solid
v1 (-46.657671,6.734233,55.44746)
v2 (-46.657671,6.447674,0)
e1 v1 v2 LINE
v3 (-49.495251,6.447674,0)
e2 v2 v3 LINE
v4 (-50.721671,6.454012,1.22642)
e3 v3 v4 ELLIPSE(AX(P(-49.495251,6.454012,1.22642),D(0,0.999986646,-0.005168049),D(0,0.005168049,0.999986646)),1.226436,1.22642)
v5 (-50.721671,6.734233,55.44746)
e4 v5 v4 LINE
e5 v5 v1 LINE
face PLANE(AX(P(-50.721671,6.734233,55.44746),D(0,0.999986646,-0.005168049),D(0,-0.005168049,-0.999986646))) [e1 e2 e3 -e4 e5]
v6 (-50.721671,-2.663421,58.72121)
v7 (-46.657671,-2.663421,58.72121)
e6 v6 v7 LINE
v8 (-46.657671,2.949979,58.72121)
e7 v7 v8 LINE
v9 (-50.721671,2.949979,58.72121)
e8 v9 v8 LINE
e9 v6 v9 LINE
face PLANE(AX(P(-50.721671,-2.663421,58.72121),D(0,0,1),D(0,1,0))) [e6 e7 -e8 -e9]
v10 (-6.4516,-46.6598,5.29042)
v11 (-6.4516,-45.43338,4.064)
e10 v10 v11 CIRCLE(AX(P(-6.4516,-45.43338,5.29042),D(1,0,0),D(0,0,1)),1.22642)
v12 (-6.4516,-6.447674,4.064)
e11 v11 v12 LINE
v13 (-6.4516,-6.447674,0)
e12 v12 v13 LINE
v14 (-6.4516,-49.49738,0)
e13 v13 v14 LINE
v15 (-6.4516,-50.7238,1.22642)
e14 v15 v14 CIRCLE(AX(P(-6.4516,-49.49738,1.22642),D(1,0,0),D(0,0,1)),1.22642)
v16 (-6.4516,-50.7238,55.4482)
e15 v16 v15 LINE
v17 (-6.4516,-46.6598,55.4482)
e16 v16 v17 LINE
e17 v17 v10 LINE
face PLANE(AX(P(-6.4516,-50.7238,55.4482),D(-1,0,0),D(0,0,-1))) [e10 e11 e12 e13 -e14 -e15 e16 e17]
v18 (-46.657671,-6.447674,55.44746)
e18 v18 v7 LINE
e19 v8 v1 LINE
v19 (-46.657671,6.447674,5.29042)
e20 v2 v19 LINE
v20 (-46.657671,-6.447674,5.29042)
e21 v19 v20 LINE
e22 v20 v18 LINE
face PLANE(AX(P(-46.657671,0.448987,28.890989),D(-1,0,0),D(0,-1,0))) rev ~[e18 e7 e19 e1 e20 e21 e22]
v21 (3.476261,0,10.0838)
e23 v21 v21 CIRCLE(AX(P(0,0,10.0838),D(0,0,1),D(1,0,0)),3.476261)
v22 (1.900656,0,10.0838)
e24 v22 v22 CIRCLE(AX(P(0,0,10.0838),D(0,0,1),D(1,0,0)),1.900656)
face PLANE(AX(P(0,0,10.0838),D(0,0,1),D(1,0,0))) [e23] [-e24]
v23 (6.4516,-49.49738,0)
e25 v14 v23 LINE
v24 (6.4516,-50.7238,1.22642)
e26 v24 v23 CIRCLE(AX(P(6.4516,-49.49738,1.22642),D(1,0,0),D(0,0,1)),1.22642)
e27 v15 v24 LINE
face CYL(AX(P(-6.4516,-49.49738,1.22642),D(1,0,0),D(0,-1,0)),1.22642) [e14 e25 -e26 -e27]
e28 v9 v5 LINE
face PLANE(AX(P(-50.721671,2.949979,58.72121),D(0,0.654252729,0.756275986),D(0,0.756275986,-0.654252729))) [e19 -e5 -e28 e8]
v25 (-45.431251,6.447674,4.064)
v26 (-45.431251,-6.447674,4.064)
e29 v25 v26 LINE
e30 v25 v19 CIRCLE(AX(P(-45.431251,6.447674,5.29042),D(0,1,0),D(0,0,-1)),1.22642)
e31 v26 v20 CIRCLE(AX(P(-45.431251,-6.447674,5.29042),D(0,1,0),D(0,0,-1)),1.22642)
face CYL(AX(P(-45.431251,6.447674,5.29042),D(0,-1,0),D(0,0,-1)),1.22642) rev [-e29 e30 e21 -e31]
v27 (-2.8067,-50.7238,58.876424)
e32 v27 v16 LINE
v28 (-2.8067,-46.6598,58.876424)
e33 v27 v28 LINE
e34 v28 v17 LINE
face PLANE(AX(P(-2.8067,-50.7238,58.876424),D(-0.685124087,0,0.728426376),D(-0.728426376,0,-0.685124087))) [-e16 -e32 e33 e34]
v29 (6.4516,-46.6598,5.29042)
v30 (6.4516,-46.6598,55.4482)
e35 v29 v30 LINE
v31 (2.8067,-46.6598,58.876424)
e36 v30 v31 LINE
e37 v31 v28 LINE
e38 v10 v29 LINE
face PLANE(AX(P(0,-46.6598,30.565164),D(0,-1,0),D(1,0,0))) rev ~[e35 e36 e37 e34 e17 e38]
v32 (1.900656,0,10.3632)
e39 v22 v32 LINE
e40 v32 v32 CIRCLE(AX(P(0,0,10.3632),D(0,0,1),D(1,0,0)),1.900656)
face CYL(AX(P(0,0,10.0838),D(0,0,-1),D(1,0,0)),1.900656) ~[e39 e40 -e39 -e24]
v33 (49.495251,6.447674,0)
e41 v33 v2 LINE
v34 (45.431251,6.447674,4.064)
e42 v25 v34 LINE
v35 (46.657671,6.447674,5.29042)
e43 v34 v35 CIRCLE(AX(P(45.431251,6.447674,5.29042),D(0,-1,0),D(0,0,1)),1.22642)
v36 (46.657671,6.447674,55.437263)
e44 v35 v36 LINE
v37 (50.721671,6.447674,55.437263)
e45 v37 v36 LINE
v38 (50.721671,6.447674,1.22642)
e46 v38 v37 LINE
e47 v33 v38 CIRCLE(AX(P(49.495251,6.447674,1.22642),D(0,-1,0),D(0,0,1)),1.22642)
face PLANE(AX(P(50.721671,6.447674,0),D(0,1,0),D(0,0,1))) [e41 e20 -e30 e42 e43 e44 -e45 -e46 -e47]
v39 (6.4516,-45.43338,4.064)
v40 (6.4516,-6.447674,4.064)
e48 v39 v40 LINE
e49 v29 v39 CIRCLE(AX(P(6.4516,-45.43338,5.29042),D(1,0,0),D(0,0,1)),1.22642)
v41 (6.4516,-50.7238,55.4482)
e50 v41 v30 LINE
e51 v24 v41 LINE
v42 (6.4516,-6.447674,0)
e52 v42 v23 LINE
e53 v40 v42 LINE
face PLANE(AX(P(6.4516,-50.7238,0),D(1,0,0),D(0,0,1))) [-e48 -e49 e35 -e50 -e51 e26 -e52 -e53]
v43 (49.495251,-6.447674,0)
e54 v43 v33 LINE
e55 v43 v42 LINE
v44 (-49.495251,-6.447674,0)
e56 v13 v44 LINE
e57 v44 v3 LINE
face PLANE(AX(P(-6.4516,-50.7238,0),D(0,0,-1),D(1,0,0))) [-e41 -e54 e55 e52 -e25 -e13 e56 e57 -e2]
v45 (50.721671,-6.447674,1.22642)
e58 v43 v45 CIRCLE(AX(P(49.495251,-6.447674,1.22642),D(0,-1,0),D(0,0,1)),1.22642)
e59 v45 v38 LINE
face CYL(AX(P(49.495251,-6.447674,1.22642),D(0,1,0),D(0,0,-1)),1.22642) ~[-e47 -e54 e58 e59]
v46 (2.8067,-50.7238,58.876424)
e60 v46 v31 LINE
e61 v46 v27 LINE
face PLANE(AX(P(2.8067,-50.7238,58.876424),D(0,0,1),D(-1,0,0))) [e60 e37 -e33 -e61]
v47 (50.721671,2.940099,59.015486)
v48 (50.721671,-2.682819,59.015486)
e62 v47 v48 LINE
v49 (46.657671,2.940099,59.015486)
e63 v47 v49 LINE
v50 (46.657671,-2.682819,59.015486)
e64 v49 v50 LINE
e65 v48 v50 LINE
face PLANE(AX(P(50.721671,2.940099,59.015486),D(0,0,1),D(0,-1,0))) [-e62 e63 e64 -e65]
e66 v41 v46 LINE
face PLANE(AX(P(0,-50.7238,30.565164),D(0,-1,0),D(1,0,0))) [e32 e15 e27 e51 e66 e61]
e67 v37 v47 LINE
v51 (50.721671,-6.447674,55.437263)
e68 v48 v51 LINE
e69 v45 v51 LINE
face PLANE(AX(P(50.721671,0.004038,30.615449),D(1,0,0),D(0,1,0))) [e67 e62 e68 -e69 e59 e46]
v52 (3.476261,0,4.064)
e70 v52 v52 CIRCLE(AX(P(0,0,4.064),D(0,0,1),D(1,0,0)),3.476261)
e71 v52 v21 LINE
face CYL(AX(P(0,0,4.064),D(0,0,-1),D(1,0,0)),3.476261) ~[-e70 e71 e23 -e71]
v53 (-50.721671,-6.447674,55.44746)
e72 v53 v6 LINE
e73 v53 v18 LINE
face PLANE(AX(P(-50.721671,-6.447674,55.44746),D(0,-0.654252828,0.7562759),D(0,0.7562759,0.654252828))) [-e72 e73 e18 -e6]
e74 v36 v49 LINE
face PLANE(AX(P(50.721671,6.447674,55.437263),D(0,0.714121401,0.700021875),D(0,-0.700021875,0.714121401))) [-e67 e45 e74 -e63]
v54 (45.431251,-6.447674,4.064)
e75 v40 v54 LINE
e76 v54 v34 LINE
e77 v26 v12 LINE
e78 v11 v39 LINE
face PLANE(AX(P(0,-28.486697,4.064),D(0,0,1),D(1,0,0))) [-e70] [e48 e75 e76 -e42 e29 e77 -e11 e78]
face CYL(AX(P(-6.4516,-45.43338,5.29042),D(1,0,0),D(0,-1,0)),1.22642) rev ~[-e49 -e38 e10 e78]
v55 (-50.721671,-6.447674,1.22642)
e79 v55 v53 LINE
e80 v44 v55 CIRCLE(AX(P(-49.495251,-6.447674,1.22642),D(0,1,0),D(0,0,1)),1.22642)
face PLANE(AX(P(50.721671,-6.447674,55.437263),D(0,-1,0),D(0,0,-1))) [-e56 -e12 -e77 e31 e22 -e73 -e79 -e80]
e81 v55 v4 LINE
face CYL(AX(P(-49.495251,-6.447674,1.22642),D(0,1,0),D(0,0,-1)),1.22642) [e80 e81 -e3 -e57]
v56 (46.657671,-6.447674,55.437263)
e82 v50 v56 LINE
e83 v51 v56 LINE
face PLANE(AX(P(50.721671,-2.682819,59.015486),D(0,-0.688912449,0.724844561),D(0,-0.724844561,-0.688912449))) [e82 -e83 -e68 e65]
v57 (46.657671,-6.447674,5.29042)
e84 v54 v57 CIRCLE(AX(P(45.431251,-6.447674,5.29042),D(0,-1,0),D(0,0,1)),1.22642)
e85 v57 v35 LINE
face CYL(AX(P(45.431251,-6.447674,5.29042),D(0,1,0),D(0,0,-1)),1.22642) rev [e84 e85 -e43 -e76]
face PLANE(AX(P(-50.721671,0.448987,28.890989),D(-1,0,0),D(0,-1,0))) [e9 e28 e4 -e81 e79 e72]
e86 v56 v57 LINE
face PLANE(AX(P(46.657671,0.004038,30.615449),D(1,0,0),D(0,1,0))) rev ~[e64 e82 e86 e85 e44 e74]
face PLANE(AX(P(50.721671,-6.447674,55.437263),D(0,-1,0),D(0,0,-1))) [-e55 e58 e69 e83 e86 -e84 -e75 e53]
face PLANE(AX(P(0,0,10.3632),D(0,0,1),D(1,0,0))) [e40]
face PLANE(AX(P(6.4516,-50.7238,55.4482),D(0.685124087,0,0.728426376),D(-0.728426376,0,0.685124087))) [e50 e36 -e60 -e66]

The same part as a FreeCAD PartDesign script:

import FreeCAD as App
import Part
import Sketcher

V = App.Vector
Q = App.Units.Quantity


def edges_at(feature, points):
    """Names of the edges that pass closest to the given points."""
    edges = feature.Shape.Edges
    near = lambda p: min(range(len(edges)), key=lambda i: edges[i].distToShape(Part.Vertex(*p))[0])
    return sorted({f"Edge{near(p) + 1}" for p in points})


def add_polygon(sketch, points):
    """Adds a closed chain of lines whose ends are joined by coincident constraints."""
    first, n = sketch.GeometryCount, len(points)
    for a, b in zip(points, points[1:] + points[:1]):
        sketch.addGeometry(Part.LineSegment(App.Vector(*a, 0), App.Vector(*b, 0)), False)
    for i in range(n):
        sketch.addConstraint(Sketcher.Constraint("Coincident", first + i, 2, first + (i + 1) % n, 1))

doc = App.newDocument("Part")
params = doc.addObject("Spreadsheet::Sheet", "Params")
for row, (alias, value) in enumerate([
    ("pad1_length", "0.16 in"),
    ("pad2_length", "0.16 in"),
    ("sketch3_width", "0.221 in"),
    ("sketch3_length", "2.183 in"),
    ("sketch3_length2", "0.197 in"),
    ("sketch3_length3", "0.197 in"),
    ("pad3_length", "0.16 in"),
    ("sketch4_width", "0.508 in"),
    ("pad4_length", "0.16 in"),
    ("sketch5_width", "0.508 in"),
    ("sketch5_width2", "0.221 in"),
    ("sketch5_height", "2.183 in"),
    ("sketch5_length", "0.197 in"),
    ("pad5_length", "0.16 in"),
    ("pad6_length", "0.237 in"),
    ("fillet_radius", "1.22642 mm"),
    ("pad7_length", "0.011 in"),
], start=1):
    params.set(f"A{row}", alias)
    params.set(f"B{row}", "=" + value)
    params.setAlias(f"B{row}", alias)

body = doc.addObject("PartDesign::Body", "Body")

# Sketch on XY plane
sketch1 = body.newObject("Sketcher::SketchObject", "Sketch")
sketch1.AttachmentSupport = (doc.getObject("XY_Plane"), [""])
sketch1.MapMode = "FlatFace"
add_polygon(sketch1, [(-50.721671, 6.447674), (-50.721671, -6.447674), (50.721671, -6.447674), (50.721671, 6.447674)])  # lines 0-3
sketch1.addConstraint(Sketcher.Constraint("Vertical", 0))
sketch1.addConstraint(Sketcher.Constraint("Horizontal", 1))
sketch1.addConstraint(Sketcher.Constraint("Vertical", 2))
sketch1.addConstraint(Sketcher.Constraint("Horizontal", 3))
sketch1.addConstraint(Sketcher.Constraint("Symmetric", 0, 2, 2, 2, -1, 1))
sketch1.addConstraint(Sketcher.Constraint("DistanceX", 1, 1, 1, 2, 101.443342))
sketch1.addConstraint(Sketcher.Constraint("DistanceY", 0, 2, 0, 1, 12.895348))
pad1 = body.newObject("PartDesign::Pad", "Pad")
pad1.Profile = sketch1
pad1.setExpression("Length", "Params.pad1_length")

# Sketch on YZ plane
sketch2 = body.newObject("Sketcher::SketchObject", "Sketch001")
sketch2.AttachmentSupport = (doc.getObject("YZ_Plane"), [""])
sketch2.MapMode = "FlatFace"
sketch2.AttachmentOffset = App.Placement(V(0, 0, 50.721671), App.Rotation())
add_polygon(sketch2, [(-6.447674, 55.437263), (-6.447674, 0), (6.447674, 0), (6.447674, 55.437263), (2.940099, 59.015486), (-2.682819, 59.015486)])  # lines 0-5
sketch2.addConstraint(Sketcher.Constraint("Vertical", 0))
sketch2.addConstraint(Sketcher.Constraint("Horizontal", 1))
sketch2.addConstraint(Sketcher.Constraint("Vertical", 2))
sketch2.addConstraint(Sketcher.Constraint("Horizontal", 4))
sketch2.addConstraint(Sketcher.Constraint("Symmetric", 0, 2, 1, 2, -1, 1))
sketch2.addConstraint(Sketcher.Constraint("Horizontal", 2, 2, 5, 2))
sketch2.addConstraint(Sketcher.Constraint("DistanceX", 4, 2, 4, 1, 5.622918))
sketch2.addConstraint(Sketcher.Constraint("DistanceX", -1, 1, 3, 2, 2.940099))
sketch2.addConstraint(Sketcher.Constraint("DistanceX", 1, 1, 1, 2, 12.895348))
sketch2.addConstraint(Sketcher.Constraint("DistanceY", 0, 2, 0, 1, 55.437263))
sketch2.addConstraint(Sketcher.Constraint("Distance", 3, 5.010665))
pad2 = body.newObject("PartDesign::Pad", "Pad001")
pad2.Profile = sketch2
pad2.setExpression("Length", "Params.pad2_length")
pad2.Reversed = True

# Sketch on YZ plane
sketch3 = body.newObject("Sketcher::SketchObject", "Sketch002")
sketch3.AttachmentSupport = (doc.getObject("YZ_Plane"), [""])
sketch3.MapMode = "FlatFace"
sketch3.AttachmentOffset = App.Placement(V(0, 0, -50.721671), App.Rotation())
add_polygon(sketch3, [(6.734233, 55.44746), (6.447674, 0), (-6.447674, 0), (-6.447674, 55.44746), (-2.663421, 58.72121), (2.949979, 58.72121)])  # lines 0-5
sketch3.addConstraint(Sketcher.Constraint("Horizontal", 1))
sketch3.addConstraint(Sketcher.Constraint("Vertical", 2))
sketch3.addConstraint(Sketcher.Constraint("Horizontal", 4))
sketch3.addConstraint(Sketcher.Constraint("PointOnObject", 0, 2, -1))
sketch3.addConstraint(Sketcher.Constraint("DistanceX", 4, 1, 4, 2, Q("0.221 in")))
sketch3.addConstraint(Sketcher.Constraint("Distance", 0, Q("2.183 in")))
sketch3.addConstraint(Sketcher.Constraint("Distance", 3, Q("0.197 in")))
sketch3.addConstraint(Sketcher.Constraint("Distance", 5, Q("0.197 in")))
sketch3.addConstraint(Sketcher.Constraint("DistanceY", 2, 1, 2, 2, 55.44746))
sketch3.addConstraint(Sketcher.Constraint("DistanceX", 1, 2, 1, 1, 12.895348))
sketch3.addConstraint(Sketcher.Constraint("DistanceX", 3, 2, -1, 1, 2.663421))
sketch3.addConstraint(Sketcher.Constraint("DistanceY", -1, 1, 3, 2, 58.72121))
sketch3.setExpression("Constraints[10]", "Params.sketch3_width")
sketch3.setExpression("Constraints[11]", "Params.sketch3_length")
sketch3.setExpression("Constraints[12]", "Params.sketch3_length2")
sketch3.setExpression("Constraints[13]", "Params.sketch3_length3")
pad3 = body.newObject("PartDesign::Pad", "Pad002")
pad3.Profile = sketch3
pad3.setExpression("Length", "Params.pad3_length")

# Sketch on XY plane
sketch4 = body.newObject("Sketcher::SketchObject", "Sketch003")
sketch4.AttachmentSupport = (doc.getObject("XY_Plane"), [""])
sketch4.MapMode = "FlatFace"
add_polygon(sketch4, [(-6.4516, -6.249594), (-6.4516, -50.723799), (6.4516, -50.723799), (6.4516, -6.249594)])  # lines 0-3
sketch4.addConstraint(Sketcher.Constraint("Vertical", 0))
sketch4.addConstraint(Sketcher.Constraint("Horizontal", 1))
sketch4.addConstraint(Sketcher.Constraint("Vertical", 2))
sketch4.addConstraint(Sketcher.Constraint("Horizontal", 3))
sketch4.addConstraint(Sketcher.Constraint("DistanceX", 1, 1, 1, 2, Q("0.508 in")))
sketch4.addConstraint(Sketcher.Constraint("DistanceX", 0, 2, -1, 1, Q("0.254 in")))
sketch4.addConstraint(Sketcher.Constraint("DistanceY", 0, 2, -1, 1, Q("1.997 in")))
sketch4.addConstraint(Sketcher.Constraint("DistanceY", 0, 2, 0, 1, 44.474205))
sketch4.setExpression("Constraints[8]", "Params.sketch4_width")
pad4 = body.newObject("PartDesign::Pad", "Pad003")
pad4.Profile = sketch4
pad4.setExpression("Length", "Params.pad4_length")

# Sketch on XZ plane
sketch5 = body.newObject("Sketcher::SketchObject", "Sketch004")
sketch5.AttachmentSupport = (doc.getObject("XZ_Plane"), [""])
sketch5.MapMode = "FlatFace"
sketch5.AttachmentOffset = App.Placement(V(0, 0, 1.997 * 25.4), App.Rotation())
add_polygon(sketch5, [(-6.4516, 55.4482), (-6.4516, 0), (6.4516, 0), (6.4516, 55.4482), (2.8067, 58.876424), (-2.8067, 58.876424)])  # lines 0-5
sketch5.addConstraint(Sketcher.Constraint("Vertical", 0))
sketch5.addConstraint(Sketcher.Constraint("Horizontal", 1))
sketch5.addConstraint(Sketcher.Constraint("Vertical", 2))
sketch5.addConstraint(Sketcher.Constraint("Horizontal", 4))
sketch5.addConstraint(Sketcher.Constraint("Symmetric", 0, 2, 1, 2, -1, 1))
sketch5.addConstraint(Sketcher.Constraint("Horizontal", 2, 2, 5, 2))
sketch5.addConstraint(Sketcher.Constraint("Equal", 3, 5))
sketch5.addConstraint(Sketcher.Constraint("DistanceX", 1, 1, 1, 2, Q("0.508 in")))
sketch5.addConstraint(Sketcher.Constraint("DistanceX", 4, 2, 4, 1, Q("0.221 in")))
sketch5.addConstraint(Sketcher.Constraint("DistanceY", 0, 2, 0, 1, Q("2.183 in")))
sketch5.addConstraint(Sketcher.Constraint("Distance", 3, Q("0.197 in")))
sketch5.setExpression("Constraints[13]", "Params.sketch5_width")
sketch5.setExpression("Constraints[14]", "Params.sketch5_width2")
sketch5.setExpression("Constraints[15]", "Params.sketch5_height")
sketch5.setExpression("Constraints[16]", "Params.sketch5_length")
pad5 = body.newObject("PartDesign::Pad", "Pad004")
pad5.Profile = sketch5
pad5.setExpression("Length", "Params.pad5_length")
pad5.Reversed = True

# Sketch on XY plane
sketch6 = body.newObject("Sketcher::SketchObject", "Sketch005")
sketch6.AttachmentSupport = (doc.getObject("XY_Plane"), [""])
sketch6.MapMode = "FlatFace"
sketch6.AttachmentOffset = App.Placement(V(0, 0, 0.16 * 25.4), App.Rotation())
sketch6.addGeometry(Part.Circle(V(0, 0, 0), V(0, 0, 1), 3.476261), False)
sketch6.addConstraint(Sketcher.Constraint("Coincident", 0, 3, -1, 1))
sketch6.addConstraint(Sketcher.Constraint("Diameter", 0, 6.952522))
pad6 = body.newObject("PartDesign::Pad", "Pad005")
pad6.Profile = sketch6
pad6.setExpression("Length", "Params.pad6_length")
doc.recompute()

fillet = body.newObject("PartDesign::Fillet", "Fillet")
fillet.Base = (pad6, edges_at(pad6, [
    (-46.658, 0, 4.064),
    (46.658, 0, 4.064),
    (50.722, 0, 0),
    (-50.722, 0, 0),
    (0, -50.724, 0),
    (0, -46.66, 4.064),
]))
fillet.setExpression("Radius", "Params.fillet_radius")

# Sketch on XY plane
sketch7 = body.newObject("Sketcher::SketchObject", "Sketch006")
sketch7.AttachmentSupport = (doc.getObject("XY_Plane"), [""])
sketch7.MapMode = "FlatFace"
sketch7.AttachmentOffset = App.Placement(V(0, 0, 0.397 * 25.4), App.Rotation())
sketch7.addGeometry(Part.Circle(V(0, 0, 0), V(0, 0, 1), 1.900656), False)
sketch7.addConstraint(Sketcher.Constraint("Coincident", 0, 3, -1, 1))
sketch7.addConstraint(Sketcher.Constraint("Diameter", 0, 3.801312))
pad7 = body.newObject("PartDesign::Pad", "Pad006")
pad7.Profile = sketch7
pad7.setExpression("Length", "Params.pad7_length")

doc.recompute()
